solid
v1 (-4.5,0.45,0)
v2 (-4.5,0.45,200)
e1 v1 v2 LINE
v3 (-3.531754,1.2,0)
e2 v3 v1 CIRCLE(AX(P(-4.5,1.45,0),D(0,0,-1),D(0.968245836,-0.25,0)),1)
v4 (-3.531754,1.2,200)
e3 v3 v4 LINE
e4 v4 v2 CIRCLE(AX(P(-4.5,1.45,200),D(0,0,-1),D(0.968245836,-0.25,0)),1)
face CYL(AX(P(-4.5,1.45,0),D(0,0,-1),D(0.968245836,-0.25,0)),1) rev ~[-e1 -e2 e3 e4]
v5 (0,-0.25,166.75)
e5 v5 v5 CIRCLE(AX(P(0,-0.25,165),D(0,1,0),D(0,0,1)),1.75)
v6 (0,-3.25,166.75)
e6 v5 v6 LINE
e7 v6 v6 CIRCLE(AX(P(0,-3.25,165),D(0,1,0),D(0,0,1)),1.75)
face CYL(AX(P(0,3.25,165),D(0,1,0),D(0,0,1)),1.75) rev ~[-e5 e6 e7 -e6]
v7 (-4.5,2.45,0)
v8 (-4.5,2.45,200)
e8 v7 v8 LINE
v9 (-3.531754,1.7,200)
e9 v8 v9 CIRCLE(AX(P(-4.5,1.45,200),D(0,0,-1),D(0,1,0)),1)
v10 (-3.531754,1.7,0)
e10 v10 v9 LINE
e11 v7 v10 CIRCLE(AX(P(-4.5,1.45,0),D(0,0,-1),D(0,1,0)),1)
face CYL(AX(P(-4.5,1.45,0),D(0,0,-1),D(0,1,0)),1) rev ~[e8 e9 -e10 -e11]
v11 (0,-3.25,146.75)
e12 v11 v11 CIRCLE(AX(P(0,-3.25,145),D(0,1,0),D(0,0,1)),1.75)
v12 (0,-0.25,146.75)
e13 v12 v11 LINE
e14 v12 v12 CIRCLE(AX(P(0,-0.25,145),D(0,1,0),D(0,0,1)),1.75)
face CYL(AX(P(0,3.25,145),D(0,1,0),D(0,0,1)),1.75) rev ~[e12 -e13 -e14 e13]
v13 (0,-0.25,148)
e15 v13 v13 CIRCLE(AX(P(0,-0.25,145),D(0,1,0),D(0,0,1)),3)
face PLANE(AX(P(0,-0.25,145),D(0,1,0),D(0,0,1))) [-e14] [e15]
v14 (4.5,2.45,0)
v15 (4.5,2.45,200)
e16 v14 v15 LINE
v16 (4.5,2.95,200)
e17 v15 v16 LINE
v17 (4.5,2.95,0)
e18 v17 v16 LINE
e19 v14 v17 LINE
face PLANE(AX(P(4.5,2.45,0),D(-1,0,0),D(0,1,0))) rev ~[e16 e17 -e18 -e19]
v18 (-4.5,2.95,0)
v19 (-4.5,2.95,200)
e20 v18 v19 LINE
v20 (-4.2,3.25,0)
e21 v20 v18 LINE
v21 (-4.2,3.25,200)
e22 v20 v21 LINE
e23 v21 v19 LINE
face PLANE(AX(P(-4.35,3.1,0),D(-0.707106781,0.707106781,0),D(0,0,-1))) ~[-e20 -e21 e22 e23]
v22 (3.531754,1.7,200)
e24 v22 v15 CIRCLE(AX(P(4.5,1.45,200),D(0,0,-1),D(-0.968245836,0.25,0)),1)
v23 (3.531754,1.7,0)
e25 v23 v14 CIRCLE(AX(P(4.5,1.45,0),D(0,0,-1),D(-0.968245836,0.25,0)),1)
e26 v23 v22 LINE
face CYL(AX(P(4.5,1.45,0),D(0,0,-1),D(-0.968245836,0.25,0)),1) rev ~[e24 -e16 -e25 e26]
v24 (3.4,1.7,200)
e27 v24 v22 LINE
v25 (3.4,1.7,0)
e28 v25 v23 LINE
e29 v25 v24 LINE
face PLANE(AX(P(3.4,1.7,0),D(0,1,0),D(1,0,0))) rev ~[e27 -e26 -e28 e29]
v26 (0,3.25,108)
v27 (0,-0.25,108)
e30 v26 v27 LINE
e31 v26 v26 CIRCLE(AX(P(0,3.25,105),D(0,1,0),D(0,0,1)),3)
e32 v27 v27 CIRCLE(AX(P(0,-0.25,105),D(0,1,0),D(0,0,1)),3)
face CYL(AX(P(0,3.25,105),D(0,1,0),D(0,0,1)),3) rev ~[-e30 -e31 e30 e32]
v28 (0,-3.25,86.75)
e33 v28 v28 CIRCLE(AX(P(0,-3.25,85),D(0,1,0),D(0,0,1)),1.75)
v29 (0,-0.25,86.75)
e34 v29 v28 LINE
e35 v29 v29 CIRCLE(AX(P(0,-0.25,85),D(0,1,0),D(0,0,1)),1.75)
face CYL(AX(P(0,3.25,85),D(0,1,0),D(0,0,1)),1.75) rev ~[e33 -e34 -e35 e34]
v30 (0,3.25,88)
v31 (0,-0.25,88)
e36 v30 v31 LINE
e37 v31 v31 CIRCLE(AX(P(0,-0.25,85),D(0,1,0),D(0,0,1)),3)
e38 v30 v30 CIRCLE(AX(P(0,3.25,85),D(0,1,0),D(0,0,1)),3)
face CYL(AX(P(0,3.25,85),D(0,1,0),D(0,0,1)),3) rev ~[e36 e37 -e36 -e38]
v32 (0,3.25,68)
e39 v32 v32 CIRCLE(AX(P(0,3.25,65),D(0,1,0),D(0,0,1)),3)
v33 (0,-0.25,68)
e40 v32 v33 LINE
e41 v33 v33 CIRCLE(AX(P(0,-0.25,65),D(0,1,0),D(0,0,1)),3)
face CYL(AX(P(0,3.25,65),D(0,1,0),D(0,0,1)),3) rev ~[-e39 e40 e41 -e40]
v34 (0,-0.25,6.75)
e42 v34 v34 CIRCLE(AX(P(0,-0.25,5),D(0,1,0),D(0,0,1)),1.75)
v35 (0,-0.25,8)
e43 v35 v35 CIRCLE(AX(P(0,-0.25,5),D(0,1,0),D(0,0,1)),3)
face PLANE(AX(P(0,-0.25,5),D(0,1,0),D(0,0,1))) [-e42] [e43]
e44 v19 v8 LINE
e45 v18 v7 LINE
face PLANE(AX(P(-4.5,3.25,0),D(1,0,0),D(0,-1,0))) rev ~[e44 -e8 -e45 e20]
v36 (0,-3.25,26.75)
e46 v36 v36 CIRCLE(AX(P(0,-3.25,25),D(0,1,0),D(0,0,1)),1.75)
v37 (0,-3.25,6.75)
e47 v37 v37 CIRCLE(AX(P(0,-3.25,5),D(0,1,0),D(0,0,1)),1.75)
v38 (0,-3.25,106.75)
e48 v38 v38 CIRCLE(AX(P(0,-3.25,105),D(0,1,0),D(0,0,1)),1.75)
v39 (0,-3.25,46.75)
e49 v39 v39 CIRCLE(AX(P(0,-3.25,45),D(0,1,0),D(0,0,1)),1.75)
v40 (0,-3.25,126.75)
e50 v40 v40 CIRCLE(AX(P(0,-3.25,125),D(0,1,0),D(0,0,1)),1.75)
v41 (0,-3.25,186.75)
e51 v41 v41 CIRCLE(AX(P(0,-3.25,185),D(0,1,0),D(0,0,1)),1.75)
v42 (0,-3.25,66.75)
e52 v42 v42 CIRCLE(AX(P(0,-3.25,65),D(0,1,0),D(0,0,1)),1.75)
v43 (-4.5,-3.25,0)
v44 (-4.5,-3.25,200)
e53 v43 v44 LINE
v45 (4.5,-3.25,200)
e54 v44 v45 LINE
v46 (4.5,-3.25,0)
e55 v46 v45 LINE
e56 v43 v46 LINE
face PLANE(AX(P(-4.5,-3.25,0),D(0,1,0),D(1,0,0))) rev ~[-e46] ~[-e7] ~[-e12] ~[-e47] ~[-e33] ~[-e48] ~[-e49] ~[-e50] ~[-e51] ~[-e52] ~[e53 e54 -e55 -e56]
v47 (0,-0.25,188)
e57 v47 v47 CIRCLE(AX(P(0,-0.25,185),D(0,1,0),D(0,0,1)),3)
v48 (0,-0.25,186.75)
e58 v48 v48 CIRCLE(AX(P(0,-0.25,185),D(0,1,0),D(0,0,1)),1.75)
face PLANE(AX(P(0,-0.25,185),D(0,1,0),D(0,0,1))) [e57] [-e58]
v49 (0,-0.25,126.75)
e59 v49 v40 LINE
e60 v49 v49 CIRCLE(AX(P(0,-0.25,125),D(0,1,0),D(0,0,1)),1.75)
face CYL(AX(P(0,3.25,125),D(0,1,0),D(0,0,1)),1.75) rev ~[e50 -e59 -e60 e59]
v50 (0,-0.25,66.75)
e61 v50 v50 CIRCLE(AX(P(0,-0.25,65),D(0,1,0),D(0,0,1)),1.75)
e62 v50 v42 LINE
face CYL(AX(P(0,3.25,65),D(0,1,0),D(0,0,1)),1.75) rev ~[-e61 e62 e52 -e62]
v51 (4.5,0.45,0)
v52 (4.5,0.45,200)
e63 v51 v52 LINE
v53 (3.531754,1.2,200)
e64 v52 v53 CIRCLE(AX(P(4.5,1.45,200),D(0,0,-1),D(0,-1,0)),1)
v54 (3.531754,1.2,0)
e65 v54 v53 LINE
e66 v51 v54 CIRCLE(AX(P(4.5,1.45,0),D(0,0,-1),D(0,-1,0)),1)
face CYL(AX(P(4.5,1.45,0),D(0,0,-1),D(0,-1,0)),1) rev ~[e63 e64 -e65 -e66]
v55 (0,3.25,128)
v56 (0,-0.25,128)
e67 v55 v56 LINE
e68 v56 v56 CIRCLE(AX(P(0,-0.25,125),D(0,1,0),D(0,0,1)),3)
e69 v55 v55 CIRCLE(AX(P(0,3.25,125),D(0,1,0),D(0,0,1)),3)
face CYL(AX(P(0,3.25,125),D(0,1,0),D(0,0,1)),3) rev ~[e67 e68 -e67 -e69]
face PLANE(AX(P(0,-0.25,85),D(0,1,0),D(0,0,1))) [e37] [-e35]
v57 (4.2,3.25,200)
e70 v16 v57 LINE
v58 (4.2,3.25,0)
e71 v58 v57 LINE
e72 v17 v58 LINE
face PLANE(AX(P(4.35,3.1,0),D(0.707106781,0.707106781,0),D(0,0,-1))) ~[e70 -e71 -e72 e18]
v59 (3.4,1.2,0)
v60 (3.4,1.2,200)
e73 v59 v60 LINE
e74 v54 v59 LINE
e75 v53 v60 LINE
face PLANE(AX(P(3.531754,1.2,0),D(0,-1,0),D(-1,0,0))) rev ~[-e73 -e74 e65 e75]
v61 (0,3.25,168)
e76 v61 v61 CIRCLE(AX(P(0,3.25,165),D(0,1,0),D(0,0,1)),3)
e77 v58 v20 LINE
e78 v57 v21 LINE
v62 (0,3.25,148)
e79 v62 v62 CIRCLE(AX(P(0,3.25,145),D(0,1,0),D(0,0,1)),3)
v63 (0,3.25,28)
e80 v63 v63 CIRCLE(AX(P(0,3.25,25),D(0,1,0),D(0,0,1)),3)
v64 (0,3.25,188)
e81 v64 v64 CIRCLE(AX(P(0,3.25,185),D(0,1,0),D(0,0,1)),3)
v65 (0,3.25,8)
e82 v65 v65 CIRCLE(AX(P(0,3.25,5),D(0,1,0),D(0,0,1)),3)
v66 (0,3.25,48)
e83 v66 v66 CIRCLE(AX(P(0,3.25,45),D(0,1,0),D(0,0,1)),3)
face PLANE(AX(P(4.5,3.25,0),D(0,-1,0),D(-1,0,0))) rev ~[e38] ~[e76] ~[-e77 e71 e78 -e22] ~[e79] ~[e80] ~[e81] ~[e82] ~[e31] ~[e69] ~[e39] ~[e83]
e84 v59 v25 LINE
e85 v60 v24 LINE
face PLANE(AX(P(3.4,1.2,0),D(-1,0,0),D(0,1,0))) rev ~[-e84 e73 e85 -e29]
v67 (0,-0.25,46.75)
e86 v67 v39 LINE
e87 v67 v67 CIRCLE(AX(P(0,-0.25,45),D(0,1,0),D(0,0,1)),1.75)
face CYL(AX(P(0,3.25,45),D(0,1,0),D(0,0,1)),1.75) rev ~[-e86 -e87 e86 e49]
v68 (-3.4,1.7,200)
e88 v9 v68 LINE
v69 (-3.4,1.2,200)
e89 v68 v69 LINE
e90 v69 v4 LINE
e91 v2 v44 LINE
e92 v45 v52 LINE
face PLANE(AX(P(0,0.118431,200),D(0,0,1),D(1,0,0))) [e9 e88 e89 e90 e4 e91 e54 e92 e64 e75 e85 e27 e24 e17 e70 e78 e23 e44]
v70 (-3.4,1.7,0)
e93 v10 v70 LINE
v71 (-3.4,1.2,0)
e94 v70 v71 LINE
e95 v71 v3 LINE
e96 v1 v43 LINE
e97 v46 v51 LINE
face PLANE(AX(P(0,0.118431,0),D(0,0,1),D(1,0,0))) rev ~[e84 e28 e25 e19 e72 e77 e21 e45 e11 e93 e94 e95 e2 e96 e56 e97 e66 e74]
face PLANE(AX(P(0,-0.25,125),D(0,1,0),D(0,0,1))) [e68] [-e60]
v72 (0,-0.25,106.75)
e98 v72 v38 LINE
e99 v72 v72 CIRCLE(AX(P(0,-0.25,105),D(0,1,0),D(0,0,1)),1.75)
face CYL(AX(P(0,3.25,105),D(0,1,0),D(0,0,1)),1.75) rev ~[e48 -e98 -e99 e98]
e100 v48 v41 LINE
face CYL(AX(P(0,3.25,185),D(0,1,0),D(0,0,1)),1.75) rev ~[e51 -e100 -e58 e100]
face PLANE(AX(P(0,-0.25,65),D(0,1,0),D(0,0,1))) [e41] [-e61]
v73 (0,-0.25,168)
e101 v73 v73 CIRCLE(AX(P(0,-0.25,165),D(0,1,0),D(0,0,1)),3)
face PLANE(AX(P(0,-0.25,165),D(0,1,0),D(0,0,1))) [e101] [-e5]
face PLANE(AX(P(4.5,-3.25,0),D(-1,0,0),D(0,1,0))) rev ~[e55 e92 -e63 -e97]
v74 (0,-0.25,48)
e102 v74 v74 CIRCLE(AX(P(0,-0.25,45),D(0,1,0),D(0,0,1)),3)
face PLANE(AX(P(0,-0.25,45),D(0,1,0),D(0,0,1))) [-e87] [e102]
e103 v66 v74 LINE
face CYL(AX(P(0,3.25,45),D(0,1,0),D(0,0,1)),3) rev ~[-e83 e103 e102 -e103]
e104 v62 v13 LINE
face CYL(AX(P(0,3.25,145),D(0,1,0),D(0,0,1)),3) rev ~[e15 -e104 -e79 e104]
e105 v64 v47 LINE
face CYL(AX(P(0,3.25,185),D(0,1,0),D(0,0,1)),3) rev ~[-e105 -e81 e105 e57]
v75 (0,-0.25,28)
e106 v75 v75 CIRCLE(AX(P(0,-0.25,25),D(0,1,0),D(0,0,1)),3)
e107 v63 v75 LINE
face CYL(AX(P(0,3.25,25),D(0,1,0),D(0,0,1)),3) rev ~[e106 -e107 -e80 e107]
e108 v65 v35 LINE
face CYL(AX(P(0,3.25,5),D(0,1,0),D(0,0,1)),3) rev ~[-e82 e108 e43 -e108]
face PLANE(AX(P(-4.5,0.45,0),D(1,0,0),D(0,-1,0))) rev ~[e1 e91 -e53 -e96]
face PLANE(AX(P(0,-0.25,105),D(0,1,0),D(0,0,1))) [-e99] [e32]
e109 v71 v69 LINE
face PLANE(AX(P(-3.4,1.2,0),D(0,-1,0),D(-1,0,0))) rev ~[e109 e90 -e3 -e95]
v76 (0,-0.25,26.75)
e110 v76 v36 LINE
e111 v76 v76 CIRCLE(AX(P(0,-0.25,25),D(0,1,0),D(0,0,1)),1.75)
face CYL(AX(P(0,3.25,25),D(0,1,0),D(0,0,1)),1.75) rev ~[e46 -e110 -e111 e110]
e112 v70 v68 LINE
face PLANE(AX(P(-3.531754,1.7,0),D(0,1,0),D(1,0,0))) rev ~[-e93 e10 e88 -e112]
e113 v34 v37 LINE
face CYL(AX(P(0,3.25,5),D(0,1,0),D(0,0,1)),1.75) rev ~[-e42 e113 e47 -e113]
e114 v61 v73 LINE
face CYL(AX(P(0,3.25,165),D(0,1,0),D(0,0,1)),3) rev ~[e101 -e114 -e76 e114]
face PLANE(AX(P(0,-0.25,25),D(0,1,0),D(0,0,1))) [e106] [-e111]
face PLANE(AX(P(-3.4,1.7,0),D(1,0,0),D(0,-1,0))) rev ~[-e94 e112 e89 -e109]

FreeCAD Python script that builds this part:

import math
import FreeCAD as App
import Part
import Sketcher

V = App.Vector


def edges_at(feature, points):
    """Names of the edges that pass closest to the given points."""
    edges = feature.Shape.Edges
    near = lambda p: min(range(len(edges)), key=lambda i: edges[i].distToShape(Part.Vertex(*p))[0])
    return sorted({f"Edge{near(p) + 1}" for p in points})

doc = App.newDocument("Part")
body = doc.addObject("PartDesign::Body", "Body")

# Sketch on XY plane
sketch1 = doc.addObject("Sketcher::SketchObject", "Sketch")
body.addObject(sketch1)
sketch1.AttachmentSupport = (doc.XY_Plane, [""])
sketch1.MapMode = "FlatFace"
sketch1.addGeometry([
    Part.LineSegment(V(-4.5, -3.25, 0), V(4.5, -3.25, 0)),  # 0
    Part.LineSegment(V(4.5, -3.25, 0), V(4.5, 0.45, 0)),  # 1
    Part.ArcOfCircle(Part.Circle(V(4.5, 1.45, 0), V(0, 0, 1), 1), math.radians(-166), math.radians(-90)),  # 2
    Part.LineSegment(V(3.53, 1.2, 0), V(3.4, 1.2, 0)),  # 3
    Part.LineSegment(V(3.4, 1.2, 0), V(3.4, 1.7, 0)),  # 4
    Part.LineSegment(V(3.4, 1.7, 0), V(3.53, 1.7, 0)),  # 5
    Part.ArcOfCircle(Part.Circle(V(4.5, 1.45, 0), V(0, 0, 1), 1), math.radians(90), math.radians(166)),  # 6
    Part.LineSegment(V(4.5, 2.45, 0), V(4.5, 3.25, 0)),  # 7
    Part.LineSegment(V(4.5, 3.25, 0), V(-4.5, 3.25, 0)),  # 8
    Part.LineSegment(V(-4.5, 3.25, 0), V(-4.5, 2.45, 0)),  # 9
    Part.ArcOfCircle(Part.Circle(V(-4.5, 1.45, 0), V(0, 0, 1), 1), math.radians(14), math.radians(90)),  # 10
    Part.LineSegment(V(-3.53, 1.7, 0), V(-3.4, 1.7, 0)),  # 11
    Part.LineSegment(V(-3.4, 1.7, 0), V(-3.4, 1.2, 0)),  # 12
    Part.LineSegment(V(-3.4, 1.2, 0), V(-3.53, 1.2, 0)),  # 13
    Part.ArcOfCircle(Part.Circle(V(-4.5, 1.45, 0), V(0, 0, 1), 1), math.radians(-90), math.radians(-14)),  # 14
    Part.LineSegment(V(-4.5, 0.45, 0), V(-4.5, -3.25, 0)),  # 15
], False)
sketch1.addConstraint([
    Sketcher.Constraint("Coincident", 0, 2, 1, 1),
    Sketcher.Constraint("Coincident", 1, 2, 2, 2),
    Sketcher.Constraint("Coincident", 2, 1, 3, 1),
    Sketcher.Constraint("Coincident", 3, 2, 4, 1),
    Sketcher.Constraint("Coincident", 4, 2, 5, 1),
    Sketcher.Constraint("Coincident", 5, 2, 6, 2),
    Sketcher.Constraint("Coincident", 6, 1, 7, 1),
    Sketcher.Constraint("Coincident", 7, 2, 8, 1),
    Sketcher.Constraint("Coincident", 8, 2, 9, 1),
    Sketcher.Constraint("Coincident", 9, 2, 10, 2),
    Sketcher.Constraint("Coincident", 10, 1, 11, 1),
    Sketcher.Constraint("Coincident", 11, 2, 12, 1),
    Sketcher.Constraint("Coincident", 12, 2, 13, 1),
    Sketcher.Constraint("Coincident", 13, 2, 14, 2),
    Sketcher.Constraint("Coincident", 14, 1, 15, 1),
    Sketcher.Constraint("Coincident", 15, 2, 0, 1),
    Sketcher.Constraint("Horizontal", 0),
    Sketcher.Constraint("Vertical", 1),
    Sketcher.Constraint("Horizontal", 3),
    Sketcher.Constraint("Vertical", 4),
    Sketcher.Constraint("Horizontal", 5),
    Sketcher.Constraint("Vertical", 7),
    Sketcher.Constraint("Horizontal", 8),
    Sketcher.Constraint("Vertical", 9),
    Sketcher.Constraint("Horizontal", 11),
    Sketcher.Constraint("Vertical", 12),
    Sketcher.Constraint("Horizontal", 13),
    Sketcher.Constraint("Vertical", 15),
    Sketcher.Constraint("Coincident", 6, 3, 2, 3),
    Sketcher.Constraint("Coincident", 14, 3, 10, 3),
    Sketcher.Constraint("Equal", 2, 6),
    Sketcher.Constraint("Equal", 6, 10),
    Sketcher.Constraint("Equal", 10, 14),
    Sketcher.Constraint("Symmetric", 0, 2, 8, 2, -1, 1),
    Sketcher.Constraint("Symmetric", 2, 3, 10, 3, -2),
    Sketcher.Constraint("Symmetric", 4, 2, 11, 2, -2),
    Sketcher.Constraint("Horizontal", 3, 2, 12, 2),
    Sketcher.Constraint("Vertical", 6, 3, 0, 2),
    Sketcher.Constraint("Vertical", 2, 1, 5, 2),
    Sketcher.Constraint("Vertical", 1, 2, 6, 1),
    Sketcher.Constraint("Vertical", 9, 2, 14, 1),
    Sketcher.Constraint("Radius", 2, 1.0),
    Sketcher.Constraint("DistanceX", 0, 1, 0, 2, 9.0),
    Sketcher.Constraint("DistanceY", 1, 1, 1, 2, 3.7),
    Sketcher.Constraint("DistanceY", 4, 1, 4, 2, 0.5),
    Sketcher.Constraint("DistanceY", 7, 1, 7, 2, 0.8),
    Sketcher.Constraint("DistanceX", -1, 1, 3, 2, 3.4),
])
pad1 = doc.addObject("PartDesign::Pad", "Pad")
body.addObject(pad1)
pad1.Profile = sketch1
pad1.Length = 200

# Sketch on XZ plane
sketch2 = doc.addObject("Sketcher::SketchObject", "Sketch001")
body.addObject(sketch2)
sketch2.AttachmentSupport = (doc.XZ_Plane, [""])
sketch2.MapMode = "FlatFace"
sketch2.AttachmentOffset = App.Placement(V(0, 0, -3.25), App.Rotation())
sketch2.addGeometry(Part.Circle(V(0, 5, 0), V(0, 0, 1), 3), False)
sketch2.addConstraint([
    Sketcher.Constraint("PointOnObject", 0, 3, -2),
    Sketcher.Constraint("Diameter", 0, 6.0),
    Sketcher.Constraint("DistanceY", -1, 1, 0, 3, 5.0),
])
pocket1 = doc.addObject("PartDesign::Pocket", "Pocket")
body.addObject(pocket1)
pocket1.Profile = sketch2
pocket1.Length = 3.5
pocket1.Reversed = True

# Sketch on XZ plane
sketch3 = doc.addObject("Sketcher::SketchObject", "Sketch002")
body.addObject(sketch3)
sketch3.AttachmentSupport = (doc.XZ_Plane, [""])
sketch3.MapMode = "FlatFace"
sketch3.AttachmentOffset = App.Placement(V(0, 0, -3.25), App.Rotation())
sketch3.addGeometry(Part.Circle(V(0, 5, 0), V(0, 0, 1), 1.8), False)
sketch3.addConstraint([
    Sketcher.Constraint("PointOnObject", 0, 3, -2),
    Sketcher.Constraint("Diameter", 0, 3.5),
    Sketcher.Constraint("DistanceY", -1, 1, 0, 3, 5.0),
])
pocket2 = doc.addObject("PartDesign::Pocket", "Pocket001")
body.addObject(pocket2)
pocket2.Profile = sketch3
pocket2.Type = "ThroughAll"
pocket2.Reversed = True
doc.recompute()

linearpattern = doc.addObject("PartDesign::LinearPattern", "LinearPattern")
body.addObject(linearpattern)
linearpattern.Originals = [pocket1, pocket2]
linearpattern.Direction = (doc.Z_Axis, [""])
linearpattern.Mode = "offset"
linearpattern.Offset = 20
linearpattern.Occurrences = 40
body.Tip = linearpattern
doc.recompute()

chamfer = doc.addObject("PartDesign::Chamfer", "Chamfer")
body.addObject(chamfer)
chamfer.Base = (linearpattern, edges_at(linearpattern, [(-4.5, 3.25, 100), (4.5, 3.25, 100)]))
chamfer.Size = 0.3

doc.recompute()
